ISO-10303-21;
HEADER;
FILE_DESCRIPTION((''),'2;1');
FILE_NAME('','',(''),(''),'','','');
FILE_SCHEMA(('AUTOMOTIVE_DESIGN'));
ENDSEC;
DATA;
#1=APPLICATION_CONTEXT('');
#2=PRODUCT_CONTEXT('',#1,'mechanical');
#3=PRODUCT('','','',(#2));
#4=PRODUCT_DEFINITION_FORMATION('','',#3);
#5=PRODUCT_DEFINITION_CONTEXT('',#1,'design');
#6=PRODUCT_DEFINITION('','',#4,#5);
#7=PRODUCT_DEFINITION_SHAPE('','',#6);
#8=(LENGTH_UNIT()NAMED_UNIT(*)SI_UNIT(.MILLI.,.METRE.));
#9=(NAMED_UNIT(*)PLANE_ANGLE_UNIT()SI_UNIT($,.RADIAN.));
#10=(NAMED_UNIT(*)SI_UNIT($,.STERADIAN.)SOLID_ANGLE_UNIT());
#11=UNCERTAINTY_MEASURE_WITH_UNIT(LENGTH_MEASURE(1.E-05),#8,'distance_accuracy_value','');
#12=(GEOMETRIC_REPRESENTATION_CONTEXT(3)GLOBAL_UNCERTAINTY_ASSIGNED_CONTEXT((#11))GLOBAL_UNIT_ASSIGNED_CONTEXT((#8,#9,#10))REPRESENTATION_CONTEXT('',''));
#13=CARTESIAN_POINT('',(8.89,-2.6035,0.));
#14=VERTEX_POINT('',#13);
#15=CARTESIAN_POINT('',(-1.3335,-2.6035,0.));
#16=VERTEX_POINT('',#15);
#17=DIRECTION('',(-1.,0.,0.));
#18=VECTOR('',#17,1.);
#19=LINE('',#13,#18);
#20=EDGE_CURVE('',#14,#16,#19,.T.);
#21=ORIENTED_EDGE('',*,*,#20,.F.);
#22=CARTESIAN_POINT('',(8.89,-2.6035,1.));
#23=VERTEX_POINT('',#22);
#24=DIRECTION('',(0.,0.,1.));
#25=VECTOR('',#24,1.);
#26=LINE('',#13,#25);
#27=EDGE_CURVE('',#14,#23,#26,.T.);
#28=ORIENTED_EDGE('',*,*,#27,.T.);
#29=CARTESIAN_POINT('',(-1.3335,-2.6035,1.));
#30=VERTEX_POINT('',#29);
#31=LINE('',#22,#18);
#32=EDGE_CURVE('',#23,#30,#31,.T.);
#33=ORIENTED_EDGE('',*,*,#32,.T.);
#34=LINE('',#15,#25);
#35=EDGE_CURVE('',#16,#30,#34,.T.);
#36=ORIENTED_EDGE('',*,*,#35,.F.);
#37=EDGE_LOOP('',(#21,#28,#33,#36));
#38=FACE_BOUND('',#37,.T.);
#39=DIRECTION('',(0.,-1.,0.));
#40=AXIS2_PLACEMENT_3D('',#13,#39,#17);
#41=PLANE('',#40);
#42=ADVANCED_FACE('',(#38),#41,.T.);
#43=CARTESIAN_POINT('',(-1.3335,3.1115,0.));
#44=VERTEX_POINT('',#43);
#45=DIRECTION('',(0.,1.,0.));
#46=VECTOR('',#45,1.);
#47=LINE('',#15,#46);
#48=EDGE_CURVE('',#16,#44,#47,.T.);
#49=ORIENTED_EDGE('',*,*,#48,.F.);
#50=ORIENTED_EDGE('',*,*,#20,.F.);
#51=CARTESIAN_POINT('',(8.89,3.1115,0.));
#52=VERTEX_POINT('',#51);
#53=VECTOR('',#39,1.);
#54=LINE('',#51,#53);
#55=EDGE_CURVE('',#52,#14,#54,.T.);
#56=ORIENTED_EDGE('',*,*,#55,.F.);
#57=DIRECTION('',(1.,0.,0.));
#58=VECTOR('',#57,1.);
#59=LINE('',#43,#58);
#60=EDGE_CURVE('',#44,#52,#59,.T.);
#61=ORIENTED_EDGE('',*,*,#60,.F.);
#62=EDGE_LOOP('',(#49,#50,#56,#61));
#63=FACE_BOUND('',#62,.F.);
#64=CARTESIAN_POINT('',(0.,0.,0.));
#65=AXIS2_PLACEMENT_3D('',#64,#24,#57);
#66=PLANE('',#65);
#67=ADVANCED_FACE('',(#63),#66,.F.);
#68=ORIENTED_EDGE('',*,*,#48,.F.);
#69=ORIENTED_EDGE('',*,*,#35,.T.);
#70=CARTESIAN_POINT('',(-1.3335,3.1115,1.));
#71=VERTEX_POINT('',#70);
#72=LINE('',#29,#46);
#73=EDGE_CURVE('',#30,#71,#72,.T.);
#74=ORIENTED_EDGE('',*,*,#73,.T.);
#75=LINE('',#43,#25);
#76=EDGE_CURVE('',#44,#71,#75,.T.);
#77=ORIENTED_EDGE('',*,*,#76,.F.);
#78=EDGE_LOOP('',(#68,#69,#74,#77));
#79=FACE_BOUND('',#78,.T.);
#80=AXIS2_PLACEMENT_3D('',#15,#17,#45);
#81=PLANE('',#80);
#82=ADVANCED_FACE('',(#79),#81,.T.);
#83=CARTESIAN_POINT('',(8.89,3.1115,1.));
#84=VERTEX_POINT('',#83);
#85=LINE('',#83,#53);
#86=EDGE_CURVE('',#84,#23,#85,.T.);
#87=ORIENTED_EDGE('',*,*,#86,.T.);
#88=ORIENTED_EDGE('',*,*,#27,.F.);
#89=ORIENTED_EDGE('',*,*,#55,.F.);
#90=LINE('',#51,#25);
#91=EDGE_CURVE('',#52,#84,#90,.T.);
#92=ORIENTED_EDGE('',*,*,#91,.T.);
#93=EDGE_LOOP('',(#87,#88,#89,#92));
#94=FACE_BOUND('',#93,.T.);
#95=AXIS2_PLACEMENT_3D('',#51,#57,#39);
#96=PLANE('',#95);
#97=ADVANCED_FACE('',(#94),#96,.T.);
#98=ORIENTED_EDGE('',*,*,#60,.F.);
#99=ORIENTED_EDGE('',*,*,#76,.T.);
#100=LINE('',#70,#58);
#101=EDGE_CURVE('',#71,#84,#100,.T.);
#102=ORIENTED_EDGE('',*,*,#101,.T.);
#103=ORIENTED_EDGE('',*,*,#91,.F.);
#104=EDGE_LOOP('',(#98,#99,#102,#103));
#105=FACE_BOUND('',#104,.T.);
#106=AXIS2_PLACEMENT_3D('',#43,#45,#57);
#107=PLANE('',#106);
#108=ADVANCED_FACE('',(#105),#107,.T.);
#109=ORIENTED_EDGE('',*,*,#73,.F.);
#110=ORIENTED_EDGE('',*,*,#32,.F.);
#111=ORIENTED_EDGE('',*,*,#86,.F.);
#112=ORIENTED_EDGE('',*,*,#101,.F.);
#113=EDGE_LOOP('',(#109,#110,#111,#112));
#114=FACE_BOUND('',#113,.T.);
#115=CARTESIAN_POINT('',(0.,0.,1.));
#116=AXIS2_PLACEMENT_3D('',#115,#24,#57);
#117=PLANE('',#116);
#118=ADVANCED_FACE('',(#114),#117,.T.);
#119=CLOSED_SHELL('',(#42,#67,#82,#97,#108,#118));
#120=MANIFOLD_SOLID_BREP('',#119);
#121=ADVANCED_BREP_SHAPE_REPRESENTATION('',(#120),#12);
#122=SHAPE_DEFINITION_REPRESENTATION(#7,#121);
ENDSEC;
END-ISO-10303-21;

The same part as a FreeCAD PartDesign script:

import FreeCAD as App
import Part
import Sketcher
from FreeCAD import Vector
Q = App.Units.Quantity


def add_polygon(sketch, points):
    """Adds a closed chain of lines whose ends are joined by coincident constraints."""
    first, n = sketch.GeometryCount, len(points)
    for a, b in zip(points, points[1:] + points[:1]):
        sketch.addGeometry(Part.LineSegment(App.Vector(*a, 0), App.Vector(*b, 0)), False)
    for i in range(n):
        sketch.addConstraint(Sketcher.Constraint("Coincident", first + i, 2, first + (i + 1) % n, 1))

doc = App.newDocument("Part")
body = doc.addObject("PartDesign::Body", "Body")

# Sketch on XY plane
sketch1 = body.newObject("Sketcher::SketchObject", "Sketch")
sketch1.AttachmentSupport = (doc.getObject("XY_Plane"), [""])
sketch1.MapMode = "FlatFace"
add_polygon(sketch1, [(9, 3), (-1, 3), (-1, -3), (9, -3)])  # lines 0-3
sketch1.addConstraint([
    Sketcher.Constraint("Horizontal", 0),
    Sketcher.Constraint("Vertical", 1),
    Sketcher.Constraint("Horizontal", 2),
    Sketcher.Constraint("Vertical", 3),
    Sketcher.Constraint("DistanceY", 1, 2, 1, 1, Q("5.715 mm")),
    Sketcher.Constraint("DistanceX", -1, 1, 2, 2, Q("8.89 mm")),
    Sketcher.Constraint("DistanceX", 0, 2, 0, 1, Q("10.2235 mm")),
    Sketcher.Constraint("DistanceY", -1, 1, 0, 2, Q("3.1115 mm")),
])
pad1 = body.newObject("PartDesign::Pad", "Pad")
pad1.Profile = sketch1
pad1.Length = 1

doc.recompute()
